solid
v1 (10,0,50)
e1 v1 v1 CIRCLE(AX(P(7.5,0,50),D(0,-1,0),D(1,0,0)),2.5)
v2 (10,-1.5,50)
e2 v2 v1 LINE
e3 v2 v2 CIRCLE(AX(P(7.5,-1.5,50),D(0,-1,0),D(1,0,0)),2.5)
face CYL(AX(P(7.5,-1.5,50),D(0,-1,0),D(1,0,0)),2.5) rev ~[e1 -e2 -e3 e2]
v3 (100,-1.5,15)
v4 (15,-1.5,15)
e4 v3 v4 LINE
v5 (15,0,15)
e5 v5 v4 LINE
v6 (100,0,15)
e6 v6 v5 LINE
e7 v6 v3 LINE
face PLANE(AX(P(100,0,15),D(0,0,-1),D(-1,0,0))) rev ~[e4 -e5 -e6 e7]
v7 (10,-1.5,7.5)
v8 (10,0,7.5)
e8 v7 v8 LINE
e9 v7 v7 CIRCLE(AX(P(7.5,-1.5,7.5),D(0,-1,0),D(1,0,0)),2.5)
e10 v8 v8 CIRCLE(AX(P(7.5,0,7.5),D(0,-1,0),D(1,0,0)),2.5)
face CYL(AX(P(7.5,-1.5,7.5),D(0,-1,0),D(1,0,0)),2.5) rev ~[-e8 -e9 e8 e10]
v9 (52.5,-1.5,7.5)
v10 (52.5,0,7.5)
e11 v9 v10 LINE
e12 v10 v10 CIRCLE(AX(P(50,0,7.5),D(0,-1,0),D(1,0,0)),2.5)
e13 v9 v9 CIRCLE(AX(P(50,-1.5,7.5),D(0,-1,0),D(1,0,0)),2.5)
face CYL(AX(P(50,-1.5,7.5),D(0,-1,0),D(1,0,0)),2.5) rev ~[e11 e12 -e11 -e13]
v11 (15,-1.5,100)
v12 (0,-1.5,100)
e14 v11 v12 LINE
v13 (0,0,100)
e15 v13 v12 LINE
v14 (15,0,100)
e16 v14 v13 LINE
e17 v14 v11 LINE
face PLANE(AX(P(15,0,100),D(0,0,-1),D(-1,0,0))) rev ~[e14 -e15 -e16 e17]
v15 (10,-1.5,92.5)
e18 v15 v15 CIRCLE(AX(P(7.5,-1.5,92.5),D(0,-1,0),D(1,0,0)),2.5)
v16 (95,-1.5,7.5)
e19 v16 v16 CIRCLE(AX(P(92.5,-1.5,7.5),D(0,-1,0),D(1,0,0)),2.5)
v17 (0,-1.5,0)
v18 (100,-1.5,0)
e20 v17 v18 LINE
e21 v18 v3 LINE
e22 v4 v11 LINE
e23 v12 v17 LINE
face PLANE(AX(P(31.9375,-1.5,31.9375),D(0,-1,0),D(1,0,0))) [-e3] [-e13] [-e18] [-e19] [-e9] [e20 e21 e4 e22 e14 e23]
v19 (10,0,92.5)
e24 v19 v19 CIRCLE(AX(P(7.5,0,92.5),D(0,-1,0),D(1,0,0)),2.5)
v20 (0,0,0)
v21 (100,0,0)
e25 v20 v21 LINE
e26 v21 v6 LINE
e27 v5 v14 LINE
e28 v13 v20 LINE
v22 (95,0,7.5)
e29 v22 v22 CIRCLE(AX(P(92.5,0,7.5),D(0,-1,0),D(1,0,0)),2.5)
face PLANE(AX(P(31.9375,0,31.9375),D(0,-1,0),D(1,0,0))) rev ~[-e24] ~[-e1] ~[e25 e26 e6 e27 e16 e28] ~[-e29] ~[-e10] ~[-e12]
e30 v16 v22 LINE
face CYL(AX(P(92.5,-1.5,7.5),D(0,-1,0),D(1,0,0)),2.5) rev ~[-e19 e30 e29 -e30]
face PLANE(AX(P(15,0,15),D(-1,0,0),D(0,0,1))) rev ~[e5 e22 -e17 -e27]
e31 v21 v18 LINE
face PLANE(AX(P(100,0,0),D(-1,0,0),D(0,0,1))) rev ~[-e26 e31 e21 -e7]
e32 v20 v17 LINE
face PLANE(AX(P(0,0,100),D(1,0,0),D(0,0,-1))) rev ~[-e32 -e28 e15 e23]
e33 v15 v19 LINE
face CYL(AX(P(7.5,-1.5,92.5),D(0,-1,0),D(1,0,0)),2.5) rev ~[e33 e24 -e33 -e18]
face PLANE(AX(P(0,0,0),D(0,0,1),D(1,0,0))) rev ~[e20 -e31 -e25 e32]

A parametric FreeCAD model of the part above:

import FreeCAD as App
import Part
import Sketcher

V = App.Vector
Q = App.Units.Quantity

doc = App.newDocument("Part")
body = doc.addObject("PartDesign::Body", "Body")

sketch1 = body.newObject("Sketcher::SketchObject", "Sketch")
sketch1.AttachmentSupport = (doc.getObject("XZ_Plane"), [""])
sketch1.MapMode = "FlatFace"
sketch1.addGeometry(Part.LineSegment(V(0, 0, 0), V(100, 0, 0)), False)
sketch1.addGeometry(Part.LineSegment(V(100, 0, 0), V(100, 15, 0)), False)
sketch1.addGeometry(Part.LineSegment(V(100, 15, 0), V(15, 15, 0)), False)
sketch1.addGeometry(Part.LineSegment(V(15, 15, 0), V(15, 100, 0)), False)
sketch1.addGeometry(Part.LineSegment(V(15, 100, 0), V(0, 100, 0)), False)
sketch1.addGeometry(Part.LineSegment(V(0, 100, 0), V(0, 0, 0)), False)
sketch1.addConstraint(Sketcher.Constraint("Coincident", 0, 2, 1, 1))
sketch1.addConstraint(Sketcher.Constraint("Coincident", 1, 2, 2, 1))
sketch1.addConstraint(Sketcher.Constraint("Coincident", 2, 2, 3, 1))
sketch1.addConstraint(Sketcher.Constraint("Coincident", 3, 2, 4, 1))
sketch1.addConstraint(Sketcher.Constraint("Coincident", 4, 2, 5, 1))
sketch1.addConstraint(Sketcher.Constraint("Coincident", 5, 2, 0, 1))
sketch1.addConstraint(Sketcher.Constraint("Horizontal", 0))
sketch1.addConstraint(Sketcher.Constraint("Vertical", 1))
sketch1.addConstraint(Sketcher.Constraint("Horizontal", 2))
sketch1.addConstraint(Sketcher.Constraint("Vertical", 3))
sketch1.addConstraint(Sketcher.Constraint("Horizontal", 4))
sketch1.addConstraint(Sketcher.Constraint("Vertical", 5))
sketch1.addConstraint(Sketcher.Constraint("Coincident", 5, 2, -1, 1))
sketch1.addConstraint(Sketcher.Constraint("Equal", 4, 1))
sketch1.addConstraint(Sketcher.Constraint("Equal", 2, 3))
sketch1.addConstraint(Sketcher.Constraint("DistanceX", 0, 1, 0, 2, Q("100 mm")))
sketch1.addConstraint(Sketcher.Constraint("DistanceX", 2, 2, 2, 1, Q("85 mm")))
pad1 = body.newObject("PartDesign::Pad", "Pad")
pad1.Profile = sketch1
pad1.Length = 1.5

sketch2 = body.newObject("Sketcher::SketchObject", "Sketch001")
sketch2.AttachmentSupport = (doc.getObject("XZ_Plane"), [""])
sketch2.MapMode = "FlatFace"
sketch2.AttachmentOffset = App.Placement(V(0, 0, 1.5), App.Rotation())
sketch2.addGeometry(Part.Circle(V(7.5, 7.5, 0), V(0, 0, 1), 2.5), False)
sketch2.addConstraint(Sketcher.Constraint("Diameter", 0, Q("5 mm")))
sketch2.addConstraint(Sketcher.Constraint("DistanceX", -1, 1, 0, 3, Q("7.5 mm")))
sketch2.addConstraint(Sketcher.Constraint("DistanceY", -1, 1, 0, 3, Q("7.5 mm")))
pocket1 = body.newObject("PartDesign::Pocket", "Pocket")
pocket1.Profile = sketch2
pocket1.Type = "ThroughAll"
doc.recompute()

linearpattern = body.newObject("PartDesign::LinearPattern", "LinearPattern")
linearpattern.Originals = [pocket1]
linearpattern.Direction = (doc.getObject("X_Axis"), [""])
linearpattern.Mode = "offset"
linearpattern.Offset = 42.5
linearpattern.Occurrences = 3
body.Tip = linearpattern
doc.recompute()

linearpattern2 = body.newObject("PartDesign::LinearPattern", "LinearPattern001")
linearpattern2.Originals = [pocket1]
linearpattern2.Direction = (doc.getObject("Z_Axis"), [""])
linearpattern2.Mode = "offset"
linearpattern2.Offset = 42.5
linearpattern2.Occurrences = 3
body.Tip = linearpattern2

doc.recompute()
